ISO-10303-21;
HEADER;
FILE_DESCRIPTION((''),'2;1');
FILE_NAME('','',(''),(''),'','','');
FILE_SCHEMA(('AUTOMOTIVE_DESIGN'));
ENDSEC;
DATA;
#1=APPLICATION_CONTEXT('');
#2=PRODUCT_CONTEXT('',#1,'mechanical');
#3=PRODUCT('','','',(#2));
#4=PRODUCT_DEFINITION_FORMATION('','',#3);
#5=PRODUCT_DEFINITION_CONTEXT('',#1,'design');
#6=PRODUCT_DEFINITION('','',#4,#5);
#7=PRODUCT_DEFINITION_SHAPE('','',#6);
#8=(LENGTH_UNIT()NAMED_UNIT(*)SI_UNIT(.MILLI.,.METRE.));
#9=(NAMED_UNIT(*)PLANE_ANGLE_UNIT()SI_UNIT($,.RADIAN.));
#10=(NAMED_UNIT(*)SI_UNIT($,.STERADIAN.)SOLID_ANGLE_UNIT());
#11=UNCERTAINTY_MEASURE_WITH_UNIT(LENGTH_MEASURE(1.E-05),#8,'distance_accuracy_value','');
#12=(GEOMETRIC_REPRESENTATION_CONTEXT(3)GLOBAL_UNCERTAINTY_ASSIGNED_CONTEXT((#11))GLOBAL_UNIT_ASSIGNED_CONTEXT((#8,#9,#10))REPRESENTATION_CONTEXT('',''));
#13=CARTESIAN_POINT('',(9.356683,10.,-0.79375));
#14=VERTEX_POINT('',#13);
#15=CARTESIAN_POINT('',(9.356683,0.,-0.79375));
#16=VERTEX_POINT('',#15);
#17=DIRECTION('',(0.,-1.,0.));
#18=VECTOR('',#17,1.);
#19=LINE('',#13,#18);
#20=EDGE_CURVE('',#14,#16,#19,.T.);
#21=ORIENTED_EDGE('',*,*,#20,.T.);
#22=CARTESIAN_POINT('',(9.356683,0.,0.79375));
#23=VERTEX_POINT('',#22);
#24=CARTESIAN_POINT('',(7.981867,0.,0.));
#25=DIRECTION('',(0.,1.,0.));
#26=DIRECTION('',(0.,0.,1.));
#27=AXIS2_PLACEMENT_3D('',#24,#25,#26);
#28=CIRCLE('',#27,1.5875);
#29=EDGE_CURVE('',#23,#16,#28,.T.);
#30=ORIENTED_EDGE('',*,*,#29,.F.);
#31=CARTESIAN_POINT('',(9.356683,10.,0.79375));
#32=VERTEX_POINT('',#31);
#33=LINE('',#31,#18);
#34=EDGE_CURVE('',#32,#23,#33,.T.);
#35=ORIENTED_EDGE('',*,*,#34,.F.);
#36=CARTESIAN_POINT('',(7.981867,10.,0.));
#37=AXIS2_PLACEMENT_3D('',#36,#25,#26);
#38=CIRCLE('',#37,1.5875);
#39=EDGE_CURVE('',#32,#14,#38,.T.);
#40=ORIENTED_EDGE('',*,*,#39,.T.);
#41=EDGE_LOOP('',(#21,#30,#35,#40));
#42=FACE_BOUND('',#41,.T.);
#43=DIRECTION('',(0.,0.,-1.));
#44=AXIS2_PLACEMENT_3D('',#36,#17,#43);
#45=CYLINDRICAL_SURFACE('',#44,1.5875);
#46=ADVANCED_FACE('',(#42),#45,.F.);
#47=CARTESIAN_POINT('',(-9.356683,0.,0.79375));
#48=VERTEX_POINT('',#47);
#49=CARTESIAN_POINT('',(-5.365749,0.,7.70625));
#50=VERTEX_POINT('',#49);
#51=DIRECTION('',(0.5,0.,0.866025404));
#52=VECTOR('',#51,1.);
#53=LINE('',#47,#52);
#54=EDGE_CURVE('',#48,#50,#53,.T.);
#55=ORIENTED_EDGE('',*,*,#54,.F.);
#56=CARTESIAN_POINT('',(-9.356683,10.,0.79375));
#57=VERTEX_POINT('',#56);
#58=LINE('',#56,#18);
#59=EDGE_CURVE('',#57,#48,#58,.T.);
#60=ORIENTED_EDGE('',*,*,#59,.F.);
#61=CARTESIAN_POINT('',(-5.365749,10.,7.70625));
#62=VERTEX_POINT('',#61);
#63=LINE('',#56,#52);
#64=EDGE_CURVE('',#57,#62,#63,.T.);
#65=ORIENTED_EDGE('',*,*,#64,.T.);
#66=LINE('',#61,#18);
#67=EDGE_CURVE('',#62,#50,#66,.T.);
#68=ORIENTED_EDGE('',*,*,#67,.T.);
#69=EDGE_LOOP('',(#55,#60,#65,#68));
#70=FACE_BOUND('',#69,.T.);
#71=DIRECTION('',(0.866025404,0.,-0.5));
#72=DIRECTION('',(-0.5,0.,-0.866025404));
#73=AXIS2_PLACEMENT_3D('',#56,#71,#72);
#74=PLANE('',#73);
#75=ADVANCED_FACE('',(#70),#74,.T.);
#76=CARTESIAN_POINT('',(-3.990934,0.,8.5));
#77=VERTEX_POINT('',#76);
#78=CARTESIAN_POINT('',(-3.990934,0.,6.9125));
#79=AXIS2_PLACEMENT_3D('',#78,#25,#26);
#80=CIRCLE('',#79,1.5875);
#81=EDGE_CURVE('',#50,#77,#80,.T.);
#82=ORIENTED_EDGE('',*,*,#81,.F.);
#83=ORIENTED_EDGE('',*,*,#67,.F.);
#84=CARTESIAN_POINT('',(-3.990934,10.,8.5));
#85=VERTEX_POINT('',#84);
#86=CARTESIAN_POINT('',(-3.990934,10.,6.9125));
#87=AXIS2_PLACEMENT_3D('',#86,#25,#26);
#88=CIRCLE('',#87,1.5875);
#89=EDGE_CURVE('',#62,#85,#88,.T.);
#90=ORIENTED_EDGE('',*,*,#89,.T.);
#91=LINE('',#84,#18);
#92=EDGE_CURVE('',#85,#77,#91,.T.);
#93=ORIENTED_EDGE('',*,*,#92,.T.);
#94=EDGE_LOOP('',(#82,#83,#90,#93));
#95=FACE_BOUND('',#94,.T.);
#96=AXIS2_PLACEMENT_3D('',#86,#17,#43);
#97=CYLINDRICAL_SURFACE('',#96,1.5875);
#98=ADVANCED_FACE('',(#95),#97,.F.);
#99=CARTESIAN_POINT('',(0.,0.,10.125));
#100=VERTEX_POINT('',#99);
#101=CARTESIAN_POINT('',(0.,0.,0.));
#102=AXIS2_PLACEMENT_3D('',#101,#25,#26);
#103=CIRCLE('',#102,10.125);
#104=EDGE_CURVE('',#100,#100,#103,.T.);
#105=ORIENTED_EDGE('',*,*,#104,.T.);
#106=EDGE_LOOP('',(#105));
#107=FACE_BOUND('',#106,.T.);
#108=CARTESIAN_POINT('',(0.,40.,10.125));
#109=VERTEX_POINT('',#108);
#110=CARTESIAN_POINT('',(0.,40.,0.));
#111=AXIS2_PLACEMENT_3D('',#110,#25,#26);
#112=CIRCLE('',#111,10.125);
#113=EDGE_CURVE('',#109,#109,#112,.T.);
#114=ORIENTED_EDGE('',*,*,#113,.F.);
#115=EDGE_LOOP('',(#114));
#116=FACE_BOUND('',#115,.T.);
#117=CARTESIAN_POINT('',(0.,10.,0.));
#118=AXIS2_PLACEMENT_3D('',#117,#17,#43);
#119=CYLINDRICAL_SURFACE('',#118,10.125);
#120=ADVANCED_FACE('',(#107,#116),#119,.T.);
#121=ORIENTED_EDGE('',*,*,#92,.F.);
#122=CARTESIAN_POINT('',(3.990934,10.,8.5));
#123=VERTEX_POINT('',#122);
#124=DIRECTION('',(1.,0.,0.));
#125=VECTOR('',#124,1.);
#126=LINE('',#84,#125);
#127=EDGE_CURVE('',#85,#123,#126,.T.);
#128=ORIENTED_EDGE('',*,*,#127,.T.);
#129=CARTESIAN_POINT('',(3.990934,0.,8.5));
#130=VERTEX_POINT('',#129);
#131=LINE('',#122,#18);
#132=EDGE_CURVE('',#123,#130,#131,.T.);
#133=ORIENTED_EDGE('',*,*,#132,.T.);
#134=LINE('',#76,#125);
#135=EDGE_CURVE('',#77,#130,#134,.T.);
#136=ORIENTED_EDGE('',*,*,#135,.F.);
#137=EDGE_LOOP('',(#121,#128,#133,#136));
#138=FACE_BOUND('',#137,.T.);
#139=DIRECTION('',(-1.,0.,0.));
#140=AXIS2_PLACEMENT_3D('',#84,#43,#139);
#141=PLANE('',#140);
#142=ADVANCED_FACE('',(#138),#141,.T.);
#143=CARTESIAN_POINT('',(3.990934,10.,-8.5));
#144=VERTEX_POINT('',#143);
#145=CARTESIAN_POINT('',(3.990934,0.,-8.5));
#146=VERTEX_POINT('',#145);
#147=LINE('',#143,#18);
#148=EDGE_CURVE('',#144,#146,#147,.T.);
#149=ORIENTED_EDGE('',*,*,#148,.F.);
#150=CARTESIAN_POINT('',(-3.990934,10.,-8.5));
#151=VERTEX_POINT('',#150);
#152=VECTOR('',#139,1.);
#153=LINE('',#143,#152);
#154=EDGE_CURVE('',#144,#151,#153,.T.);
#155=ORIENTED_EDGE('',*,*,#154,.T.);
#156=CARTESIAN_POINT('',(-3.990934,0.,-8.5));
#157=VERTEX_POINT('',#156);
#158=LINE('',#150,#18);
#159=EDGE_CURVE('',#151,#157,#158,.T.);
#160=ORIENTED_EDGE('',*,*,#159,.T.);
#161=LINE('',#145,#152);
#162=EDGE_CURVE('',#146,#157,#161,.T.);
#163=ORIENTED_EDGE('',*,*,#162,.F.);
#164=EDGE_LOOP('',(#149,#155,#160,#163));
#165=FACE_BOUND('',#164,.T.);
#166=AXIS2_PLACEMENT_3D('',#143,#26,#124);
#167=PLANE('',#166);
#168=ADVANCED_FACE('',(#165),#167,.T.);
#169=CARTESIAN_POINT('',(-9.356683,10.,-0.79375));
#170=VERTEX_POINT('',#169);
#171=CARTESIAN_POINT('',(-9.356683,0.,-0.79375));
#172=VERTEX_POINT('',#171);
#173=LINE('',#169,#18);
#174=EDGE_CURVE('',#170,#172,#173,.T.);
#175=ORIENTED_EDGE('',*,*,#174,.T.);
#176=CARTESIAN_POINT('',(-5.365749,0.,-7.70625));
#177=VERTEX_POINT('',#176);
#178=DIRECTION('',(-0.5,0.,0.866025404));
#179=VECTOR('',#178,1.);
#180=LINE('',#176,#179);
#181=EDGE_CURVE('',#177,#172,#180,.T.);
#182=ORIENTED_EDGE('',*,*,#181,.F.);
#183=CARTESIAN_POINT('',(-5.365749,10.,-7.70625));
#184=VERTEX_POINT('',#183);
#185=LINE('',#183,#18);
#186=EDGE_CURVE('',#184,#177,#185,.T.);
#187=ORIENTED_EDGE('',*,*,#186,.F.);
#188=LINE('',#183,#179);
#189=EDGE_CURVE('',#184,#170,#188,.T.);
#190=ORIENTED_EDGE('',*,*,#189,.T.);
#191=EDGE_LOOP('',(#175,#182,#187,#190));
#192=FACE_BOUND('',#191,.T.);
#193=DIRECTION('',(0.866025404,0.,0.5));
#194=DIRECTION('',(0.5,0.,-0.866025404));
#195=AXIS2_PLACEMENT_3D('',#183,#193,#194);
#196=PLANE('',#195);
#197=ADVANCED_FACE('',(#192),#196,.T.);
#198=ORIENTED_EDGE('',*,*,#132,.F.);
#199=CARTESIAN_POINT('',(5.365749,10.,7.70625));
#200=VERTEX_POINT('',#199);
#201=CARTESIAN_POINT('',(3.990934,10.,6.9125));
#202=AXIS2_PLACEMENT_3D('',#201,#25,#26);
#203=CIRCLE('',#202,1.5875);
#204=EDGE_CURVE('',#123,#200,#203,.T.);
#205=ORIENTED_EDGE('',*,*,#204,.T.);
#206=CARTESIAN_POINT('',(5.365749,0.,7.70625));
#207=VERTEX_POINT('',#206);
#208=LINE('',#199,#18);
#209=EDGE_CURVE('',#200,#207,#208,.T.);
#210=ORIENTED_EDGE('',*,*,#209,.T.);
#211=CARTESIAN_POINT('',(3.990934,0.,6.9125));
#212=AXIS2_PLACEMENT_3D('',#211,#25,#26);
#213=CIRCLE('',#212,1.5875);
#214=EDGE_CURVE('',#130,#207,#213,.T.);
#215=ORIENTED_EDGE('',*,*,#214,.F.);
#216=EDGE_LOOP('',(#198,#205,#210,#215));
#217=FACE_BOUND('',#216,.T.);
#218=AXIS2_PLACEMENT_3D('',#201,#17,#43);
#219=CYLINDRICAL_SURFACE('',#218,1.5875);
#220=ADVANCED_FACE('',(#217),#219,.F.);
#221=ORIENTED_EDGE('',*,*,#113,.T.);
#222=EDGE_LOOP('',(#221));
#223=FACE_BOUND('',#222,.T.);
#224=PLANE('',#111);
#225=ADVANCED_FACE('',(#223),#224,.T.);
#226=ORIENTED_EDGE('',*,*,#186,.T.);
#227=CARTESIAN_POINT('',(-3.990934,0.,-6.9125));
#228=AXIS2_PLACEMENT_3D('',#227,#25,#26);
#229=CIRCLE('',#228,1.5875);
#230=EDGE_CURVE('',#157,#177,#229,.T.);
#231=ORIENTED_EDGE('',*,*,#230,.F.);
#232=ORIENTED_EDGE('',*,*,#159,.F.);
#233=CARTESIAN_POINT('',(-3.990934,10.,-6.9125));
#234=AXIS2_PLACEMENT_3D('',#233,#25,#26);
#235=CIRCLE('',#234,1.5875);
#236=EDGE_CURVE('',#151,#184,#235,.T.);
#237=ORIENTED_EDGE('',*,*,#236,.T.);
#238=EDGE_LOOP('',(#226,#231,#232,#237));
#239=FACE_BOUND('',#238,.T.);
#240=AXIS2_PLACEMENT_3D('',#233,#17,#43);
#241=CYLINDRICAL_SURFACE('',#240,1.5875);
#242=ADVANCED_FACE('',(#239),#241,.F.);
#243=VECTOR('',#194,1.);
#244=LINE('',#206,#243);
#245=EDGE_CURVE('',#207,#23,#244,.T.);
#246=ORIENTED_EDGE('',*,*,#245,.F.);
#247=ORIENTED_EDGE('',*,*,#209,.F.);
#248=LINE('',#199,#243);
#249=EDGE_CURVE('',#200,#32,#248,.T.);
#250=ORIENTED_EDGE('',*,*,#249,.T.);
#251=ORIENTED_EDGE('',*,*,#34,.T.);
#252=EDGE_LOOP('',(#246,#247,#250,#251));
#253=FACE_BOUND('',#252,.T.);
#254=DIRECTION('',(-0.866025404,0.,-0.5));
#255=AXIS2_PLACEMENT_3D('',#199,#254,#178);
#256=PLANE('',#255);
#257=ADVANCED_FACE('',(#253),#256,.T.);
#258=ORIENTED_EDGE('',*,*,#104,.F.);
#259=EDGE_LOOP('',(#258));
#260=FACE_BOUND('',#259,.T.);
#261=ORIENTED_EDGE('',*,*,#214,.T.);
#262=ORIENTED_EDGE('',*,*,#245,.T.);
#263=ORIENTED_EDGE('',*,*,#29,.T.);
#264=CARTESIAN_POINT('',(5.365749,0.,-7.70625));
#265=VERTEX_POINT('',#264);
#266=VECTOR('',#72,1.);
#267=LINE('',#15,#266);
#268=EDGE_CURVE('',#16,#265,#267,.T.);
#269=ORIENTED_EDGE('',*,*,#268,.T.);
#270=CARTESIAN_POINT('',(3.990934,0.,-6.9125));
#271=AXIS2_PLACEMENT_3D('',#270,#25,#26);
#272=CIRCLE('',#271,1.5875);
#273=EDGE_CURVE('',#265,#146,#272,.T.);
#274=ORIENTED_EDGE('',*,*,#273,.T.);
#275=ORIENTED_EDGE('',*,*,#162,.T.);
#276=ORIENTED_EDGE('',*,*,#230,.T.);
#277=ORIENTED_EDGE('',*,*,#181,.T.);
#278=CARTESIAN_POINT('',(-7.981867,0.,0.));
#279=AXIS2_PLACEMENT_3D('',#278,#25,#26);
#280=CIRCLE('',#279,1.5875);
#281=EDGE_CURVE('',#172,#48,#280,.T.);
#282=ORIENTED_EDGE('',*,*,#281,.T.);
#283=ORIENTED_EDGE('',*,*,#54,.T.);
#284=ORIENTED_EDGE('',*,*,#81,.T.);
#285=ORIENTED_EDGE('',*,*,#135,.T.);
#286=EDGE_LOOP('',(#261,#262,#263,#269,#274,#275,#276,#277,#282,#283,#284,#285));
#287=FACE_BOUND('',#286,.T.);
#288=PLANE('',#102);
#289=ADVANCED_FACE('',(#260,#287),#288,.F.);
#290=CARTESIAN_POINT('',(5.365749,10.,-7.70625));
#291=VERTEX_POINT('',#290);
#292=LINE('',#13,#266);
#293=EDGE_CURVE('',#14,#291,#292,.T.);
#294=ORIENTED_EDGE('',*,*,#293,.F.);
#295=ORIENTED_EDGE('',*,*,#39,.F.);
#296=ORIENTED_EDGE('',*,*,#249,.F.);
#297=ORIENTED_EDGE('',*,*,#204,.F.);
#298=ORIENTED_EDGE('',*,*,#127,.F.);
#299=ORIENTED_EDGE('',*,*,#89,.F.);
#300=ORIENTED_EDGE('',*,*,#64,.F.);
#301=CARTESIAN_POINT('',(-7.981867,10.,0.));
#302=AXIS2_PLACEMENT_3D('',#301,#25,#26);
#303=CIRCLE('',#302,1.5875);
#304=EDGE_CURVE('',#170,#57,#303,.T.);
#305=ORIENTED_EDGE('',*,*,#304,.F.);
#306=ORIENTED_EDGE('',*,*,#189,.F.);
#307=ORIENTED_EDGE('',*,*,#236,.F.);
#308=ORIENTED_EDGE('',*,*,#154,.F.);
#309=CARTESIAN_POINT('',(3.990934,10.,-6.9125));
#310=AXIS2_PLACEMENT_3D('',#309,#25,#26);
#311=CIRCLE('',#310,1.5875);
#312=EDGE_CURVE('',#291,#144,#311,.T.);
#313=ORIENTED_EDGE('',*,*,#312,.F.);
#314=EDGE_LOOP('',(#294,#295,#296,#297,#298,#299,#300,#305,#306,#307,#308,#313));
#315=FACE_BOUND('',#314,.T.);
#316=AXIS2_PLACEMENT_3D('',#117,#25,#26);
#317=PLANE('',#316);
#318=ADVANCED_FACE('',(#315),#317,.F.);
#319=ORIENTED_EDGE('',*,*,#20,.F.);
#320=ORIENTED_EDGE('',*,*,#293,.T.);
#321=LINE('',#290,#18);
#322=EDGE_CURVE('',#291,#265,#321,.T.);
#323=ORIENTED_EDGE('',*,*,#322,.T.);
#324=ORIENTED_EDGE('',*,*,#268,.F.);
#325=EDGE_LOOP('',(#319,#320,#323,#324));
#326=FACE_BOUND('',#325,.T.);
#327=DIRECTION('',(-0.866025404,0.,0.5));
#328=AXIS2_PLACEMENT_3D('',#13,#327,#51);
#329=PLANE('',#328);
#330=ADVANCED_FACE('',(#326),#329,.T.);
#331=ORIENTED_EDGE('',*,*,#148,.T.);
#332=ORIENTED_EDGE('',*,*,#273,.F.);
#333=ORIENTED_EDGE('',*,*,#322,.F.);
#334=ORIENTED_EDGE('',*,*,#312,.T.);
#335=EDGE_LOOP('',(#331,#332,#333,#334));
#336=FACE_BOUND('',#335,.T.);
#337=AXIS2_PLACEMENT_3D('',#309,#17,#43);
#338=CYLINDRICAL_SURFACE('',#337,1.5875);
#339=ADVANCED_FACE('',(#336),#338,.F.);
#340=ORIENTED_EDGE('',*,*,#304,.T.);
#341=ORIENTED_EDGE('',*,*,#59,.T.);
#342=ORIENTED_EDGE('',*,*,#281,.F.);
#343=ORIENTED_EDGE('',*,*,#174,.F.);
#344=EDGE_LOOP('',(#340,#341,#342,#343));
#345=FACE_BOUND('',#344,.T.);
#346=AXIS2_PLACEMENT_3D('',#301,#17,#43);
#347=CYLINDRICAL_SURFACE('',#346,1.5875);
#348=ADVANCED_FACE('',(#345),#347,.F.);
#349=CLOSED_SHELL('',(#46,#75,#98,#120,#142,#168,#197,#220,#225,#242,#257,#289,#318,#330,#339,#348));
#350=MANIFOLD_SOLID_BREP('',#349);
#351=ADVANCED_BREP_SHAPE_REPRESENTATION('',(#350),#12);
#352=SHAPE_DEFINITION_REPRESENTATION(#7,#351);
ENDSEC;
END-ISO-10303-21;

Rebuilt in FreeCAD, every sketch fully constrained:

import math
import FreeCAD as App
import Part
import Sketcher

V = App.Vector
Q = App.Units.Quantity

doc = App.newDocument("Part")
body = doc.addObject("PartDesign::Body", "Body")

# Sketch on XZ plane
sketch1 = body.newObject("Sketcher::SketchObject", "Sketch")
sketch1.AttachmentSupport = (doc.getObject("XZ_Plane"), [""])
sketch1.MapMode = "FlatFace"
sketch1.addGeometry([
    Part.Circle(V(0, 0, 0), V(0, 0, 1), 10.1),  # 0
    Part.LineSegment(V(5.4, -7.7, 0), V(9.4, -0.8, 0)),  # 1
    Part.ArcOfCircle(Part.Circle(V(8, 0, 0), V(0, 0, 1), 1.6), math.radians(-30), math.radians(30)),  # 2
    Part.LineSegment(V(9.4, 0.8, 0), V(5.4, 7.7, 0)),  # 3
    Part.ArcOfCircle(Part.Circle(V(4, 6.9, 0), V(0, 0, 1), 1.6), math.radians(30), math.radians(90)),  # 4
    Part.LineSegment(V(4, 8.5, 0), V(-4, 8.5, 0)),  # 5
    Part.ArcOfCircle(Part.Circle(V(-4, 6.9, 0), V(0, 0, 1), 1.6), math.radians(90), math.radians(150)),  # 6
    Part.LineSegment(V(-5.4, 7.7, 0), V(-9.4, 0.8, 0)),  # 7
    Part.ArcOfCircle(Part.Circle(V(-8, 0, 0), V(0, 0, 1), 1.6), math.radians(150), math.radians(210)),  # 8
    Part.LineSegment(V(-9.4, -0.8, 0), V(-5.4, -7.7, 0)),  # 9
    Part.ArcOfCircle(Part.Circle(V(-4, -6.9, 0), V(0, 0, 1), 1.6), math.radians(-150), math.radians(-90)),  # 10
    Part.LineSegment(V(-4, -8.5, 0), V(4, -8.5, 0)),  # 11
    Part.ArcOfCircle(Part.Circle(V(4, -6.9, 0), V(0, 0, 1), 1.6), math.radians(-90), math.radians(-30)),  # 12
], False)
sketch1.addConstraint([
    Sketcher.Constraint("Tangent", 1, 2, 2, 1),
    Sketcher.Constraint("Tangent", 2, 2, 3, 1),
    Sketcher.Constraint("Tangent", 3, 2, 4, 1),
    Sketcher.Constraint("Tangent", 4, 2, 5, 1),
    Sketcher.Constraint("Tangent", 5, 2, 6, 1),
    Sketcher.Constraint("Tangent", 6, 2, 7, 1),
    Sketcher.Constraint("Tangent", 7, 2, 8, 1),
    Sketcher.Constraint("Tangent", 8, 2, 9, 1),
    Sketcher.Constraint("Tangent", 9, 2, 10, 1),
    Sketcher.Constraint("Tangent", 10, 2, 11, 1),
    Sketcher.Constraint("Tangent", 11, 2, 12, 1),
    Sketcher.Constraint("Tangent", 12, 2, 1, 1),
    Sketcher.Constraint("Horizontal", 5),
    Sketcher.Constraint("Horizontal", 11),
    Sketcher.Constraint("Coincident", 0, 3, -1, 1),
    Sketcher.Constraint("Equal", 2, 4),
    Sketcher.Constraint("Equal", 4, 6),
    Sketcher.Constraint("Equal", 6, 8),
    Sketcher.Constraint("Equal", 8, 10),
    Sketcher.Constraint("Equal", 10, 12),
    Sketcher.Constraint("Symmetric", 2, 3, 8, 3, -1, 1),
    Sketcher.Constraint("Symmetric", 4, 3, 10, 3, -1, 1),
    Sketcher.Constraint("Symmetric", 3, 2, 6, 2, -2),
    Sketcher.Constraint("Parallel", 1, 7),
    Sketcher.Constraint("Diameter", 0, 20.25),
    Sketcher.Constraint("Angle", 1, Q("60 deg")),
    Sketcher.Constraint("DistanceY", -1, 1, 4, 2, 8.5),
    Sketcher.Constraint("Radius", 2, 1.5875),
    Sketcher.Constraint("DistanceX", 6, 3, 2, 3, 11.972801),
])
pad1 = body.newObject("PartDesign::Pad", "Pad")
pad1.Profile = sketch1
pad1.Length = 10
pad1.Reversed = True

# Sketch on XZ plane
sketch2 = body.newObject("Sketcher::SketchObject", "Sketch001")
sketch2.AttachmentSupport = (doc.getObject("XZ_Plane"), [""])
sketch2.MapMode = "FlatFace"
sketch2.AttachmentOffset = App.Placement(V(0, 0, -10), App.Rotation())
sketch2.addGeometry(Part.Circle(V(0, 0, 0), V(0, 0, 1), 10), False)
sketch2.addConstraint([
    Sketcher.Constraint("Coincident", 0, 3, -1, 1),
    Sketcher.Constraint("Diameter", 0, 20.25),
])
pad2 = body.newObject("PartDesign::Pad", "Pad001")
pad2.Profile = sketch2
pad2.Length = 30
pad2.Reversed = True

doc.recompute()
